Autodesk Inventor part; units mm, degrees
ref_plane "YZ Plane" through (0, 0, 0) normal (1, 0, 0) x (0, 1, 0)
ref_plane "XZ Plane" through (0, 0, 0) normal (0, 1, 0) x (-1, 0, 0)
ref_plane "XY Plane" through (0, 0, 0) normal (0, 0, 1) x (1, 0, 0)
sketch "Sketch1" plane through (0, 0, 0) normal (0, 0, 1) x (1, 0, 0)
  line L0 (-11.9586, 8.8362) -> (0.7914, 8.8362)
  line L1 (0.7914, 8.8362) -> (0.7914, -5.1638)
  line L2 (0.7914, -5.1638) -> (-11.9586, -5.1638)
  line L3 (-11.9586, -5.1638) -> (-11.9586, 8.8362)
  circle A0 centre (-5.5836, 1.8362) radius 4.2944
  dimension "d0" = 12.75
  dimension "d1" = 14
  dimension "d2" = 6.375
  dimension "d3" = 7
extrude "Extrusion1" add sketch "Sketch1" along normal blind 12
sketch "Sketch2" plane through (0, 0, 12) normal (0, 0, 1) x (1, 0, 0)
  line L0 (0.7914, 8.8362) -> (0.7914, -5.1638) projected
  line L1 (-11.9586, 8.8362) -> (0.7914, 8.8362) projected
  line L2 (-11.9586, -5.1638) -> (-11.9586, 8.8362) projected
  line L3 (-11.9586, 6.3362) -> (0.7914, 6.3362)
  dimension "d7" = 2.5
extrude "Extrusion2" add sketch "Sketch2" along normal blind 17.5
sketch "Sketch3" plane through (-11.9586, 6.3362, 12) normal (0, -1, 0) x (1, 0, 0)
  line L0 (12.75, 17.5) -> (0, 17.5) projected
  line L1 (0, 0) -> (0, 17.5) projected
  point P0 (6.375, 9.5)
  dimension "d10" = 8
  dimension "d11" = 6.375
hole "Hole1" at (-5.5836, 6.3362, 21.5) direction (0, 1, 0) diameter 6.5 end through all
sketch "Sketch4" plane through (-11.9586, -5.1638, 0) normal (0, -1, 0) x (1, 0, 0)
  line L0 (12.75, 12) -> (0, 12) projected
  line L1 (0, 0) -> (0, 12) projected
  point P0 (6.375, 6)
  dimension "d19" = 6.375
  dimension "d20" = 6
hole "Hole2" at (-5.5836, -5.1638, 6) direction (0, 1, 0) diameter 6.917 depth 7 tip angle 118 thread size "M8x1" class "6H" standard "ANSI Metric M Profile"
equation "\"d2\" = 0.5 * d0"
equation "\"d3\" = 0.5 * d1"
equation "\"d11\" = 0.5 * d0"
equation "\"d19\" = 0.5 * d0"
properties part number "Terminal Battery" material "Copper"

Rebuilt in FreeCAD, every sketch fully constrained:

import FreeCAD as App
import Part
import Sketcher
from FreeCAD import Vector
Q = App.Units.Quantity


def add_polygon(sketch, points):
    """Adds a closed chain of lines whose ends are joined by coincident constraints."""
    first, n = sketch.GeometryCount, len(points)
    for a, b in zip(points, points[1:] + points[:1]):
        sketch.addGeometry(Part.LineSegment(App.Vector(*a, 0), App.Vector(*b, 0)), False)
    for i in range(n):
        sketch.addConstraint(Sketcher.Constraint("Coincident", first + i, 2, first + (i + 1) % n, 1))

doc = App.newDocument("Part")
params = doc.addObject("Spreadsheet::Sheet", "Params")
for row, (alias, value) in enumerate([
    ("sketch1_height", "14 mm"),
    ("sketch1_width", "12.75 mm"),
    ("pad1_length", "12 mm"),
    ("sketch2_height", "2.5 mm"),
    ("sketch2_width", "12.75 mm"),
    ("pad2_length", "17.5 mm"),
    ("sketch3_diameter", "6.5 mm"),
    ("hole_diameter", "6.5 mm"),
    ("hole2_diameter", "6.917 mm"),
    ("hole2_depth", "7 mm"),
], start=1):
    params.set(f"A{row}", alias)
    params.set(f"B{row}", "=" + value)
    params.setAlias(f"B{row}", alias)

body = doc.addObject("PartDesign::Body", "Body")

# Sketch on XY plane
sketch1 = body.newObject("Sketcher::SketchObject", "Sketch")
sketch1.AttachmentSupport = (doc.getObject("XY_Plane"), [""])
sketch1.MapMode = "FlatFace"
add_polygon(sketch1, [(0.7914, 8.8362), (-11.9586, 8.8362), (-11.9586, -5.1638), (0.7914, -5.1638)])  # lines 0-3
sketch1.addGeometry(Part.Circle(Vector(-5.5836, 1.8362, 0), Vector(0, 0, 1), 4.2944), False)  # 4
sketch1.addConstraint(Sketcher.Constraint("Horizontal", 0))
sketch1.addConstraint(Sketcher.Constraint("Vertical", 1))
sketch1.addConstraint(Sketcher.Constraint("Horizontal", 2))
sketch1.addConstraint(Sketcher.Constraint("Vertical", 3))
sketch1.addConstraint(Sketcher.Constraint("DistanceY", 1, 2, 1, 1, Q("14 mm")))
sketch1.addConstraint(Sketcher.Constraint("DistanceY", 4, 3, 0, 2, Q("7 mm")))
sketch1.addConstraint(Sketcher.Constraint("DistanceX", 0, 2, 0, 1, Q("12.75 mm")))
sketch1.addConstraint(Sketcher.Constraint("DistanceX", 0, 2, 4, 3, Q("6.375 mm")))
sketch1.addConstraint(Sketcher.Constraint("Diameter", 4, Q("8.5888 mm")))
sketch1.addConstraint(Sketcher.Constraint("DistanceX", 4, 3, -1, 1, Q("5.5836 mm")))
sketch1.addConstraint(Sketcher.Constraint("DistanceY", -1, 1, 4, 3, Q("1.8362 mm")))
sketch1.setExpression("Constraints[8]", "Params.sketch1_height")
sketch1.setExpression("Constraints[10]", "Params.sketch1_width")
pad1 = body.newObject("PartDesign::Pad", "Pad")
pad1.Profile = sketch1
pad1.setExpression("Length", "Params.pad1_length")

# Sketch on XY plane
sketch2 = body.newObject("Sketcher::SketchObject", "Sketch001")
sketch2.AttachmentSupport = (doc.getObject("XY_Plane"), [""])
sketch2.MapMode = "FlatFace"
sketch2.AttachmentOffset = App.Placement(Vector(0, 0, 12), App.Rotation())
add_polygon(sketch2, [(0.7914, 6.3362), (0.7914, 8.8362), (-11.9586, 8.8362), (-11.9586, 6.3362)])  # lines 0-3
sketch2.addConstraint(Sketcher.Constraint("Vertical", 0))
sketch2.addConstraint(Sketcher.Constraint("Horizontal", 1))
sketch2.addConstraint(Sketcher.Constraint("Vertical", 2))
sketch2.addConstraint(Sketcher.Constraint("Horizontal", 3))
sketch2.addConstraint(Sketcher.Constraint("DistanceY", 0, 1, 0, 2, Q("2.5 mm")))
sketch2.addConstraint(Sketcher.Constraint("DistanceX", 1, 2, 1, 1, Q("12.75 mm")))
sketch2.addConstraint(Sketcher.Constraint("DistanceX", -1, 1, 0, 2, Q("0.7914 mm")))
sketch2.addConstraint(Sketcher.Constraint("DistanceY", -1, 1, 0, 2, Q("8.8362 mm")))
sketch2.setExpression("Constraints[8]", "Params.sketch2_height")
sketch2.setExpression("Constraints[9]", "Params.sketch2_width")
pad2 = body.newObject("PartDesign::Pad", "Pad001")
pad2.Profile = sketch2
pad2.setExpression("Length", "Params.pad2_length")

# Sketch on XZ plane
sketch3 = body.newObject("Sketcher::SketchObject", "Sketch002")
sketch3.AttachmentSupport = (doc.getObject("XZ_Plane"), [""])
sketch3.MapMode = "FlatFace"
sketch3.AttachmentOffset = App.Placement(Vector(0, 0, -6.3362), App.Rotation())
sketch3.addGeometry(Part.Circle(Vector(-5.5836, 21.5, 0), Vector(0, 0, 1), 3.25), False)
sketch3.addConstraint(Sketcher.Constraint("Diameter", 0, Q("6.5 mm")))
sketch3.addConstraint(Sketcher.Constraint("DistanceY", -1, 1, 0, 3, Q("21.5 mm")))
sketch3.addConstraint(Sketcher.Constraint("DistanceX", 0, 3, -1, 1, Q("5.5836 mm")))
sketch3.setExpression("Constraints[0]", "Params.sketch3_diameter")
doc.recompute()
hole = body.newObject("PartDesign::Hole", "Hole")
hole.Profile = sketch3
hole.ThreadType = "None"
hole.setExpression("Diameter", "Params.hole_diameter")
hole.DepthType = "ThroughAll"

# Sketch on XZ plane
sketch4 = body.newObject("Sketcher::SketchObject", "Sketch003")
sketch4.AttachmentSupport = (doc.getObject("XZ_Plane"), [""])
sketch4.MapMode = "FlatFace"
sketch4.AttachmentOffset = App.Placement(Vector(0, 0, 5.1638), App.Rotation())
sketch4.addGeometry(Part.Circle(Vector(-5.5836, 6, 0), Vector(0, 0, 1), 3.4585), False)
sketch4.addConstraint(Sketcher.Constraint("Diameter", 0, Q("6.917 mm")))
sketch4.addConstraint(Sketcher.Constraint("DistanceY", -1, 1, 0, 3, Q("6 mm")))
sketch4.addConstraint(Sketcher.Constraint("DistanceX", 0, 3, -1, 1, Q("5.5836 mm")))
doc.recompute()
hole2 = body.newObject("PartDesign::Hole", "Hole001")
hole2.Profile = sketch4
hole2.ThreadType = "None"
hole2.setExpression("Diameter", "Params.hole2_diameter")
hole2.DepthType = "Dimension"
hole2.setExpression("Depth", "Params.hole2_depth")
hole2.DrillPoint = "Angled"
hole2.DrillPointAngle = 118

doc.recompute()
